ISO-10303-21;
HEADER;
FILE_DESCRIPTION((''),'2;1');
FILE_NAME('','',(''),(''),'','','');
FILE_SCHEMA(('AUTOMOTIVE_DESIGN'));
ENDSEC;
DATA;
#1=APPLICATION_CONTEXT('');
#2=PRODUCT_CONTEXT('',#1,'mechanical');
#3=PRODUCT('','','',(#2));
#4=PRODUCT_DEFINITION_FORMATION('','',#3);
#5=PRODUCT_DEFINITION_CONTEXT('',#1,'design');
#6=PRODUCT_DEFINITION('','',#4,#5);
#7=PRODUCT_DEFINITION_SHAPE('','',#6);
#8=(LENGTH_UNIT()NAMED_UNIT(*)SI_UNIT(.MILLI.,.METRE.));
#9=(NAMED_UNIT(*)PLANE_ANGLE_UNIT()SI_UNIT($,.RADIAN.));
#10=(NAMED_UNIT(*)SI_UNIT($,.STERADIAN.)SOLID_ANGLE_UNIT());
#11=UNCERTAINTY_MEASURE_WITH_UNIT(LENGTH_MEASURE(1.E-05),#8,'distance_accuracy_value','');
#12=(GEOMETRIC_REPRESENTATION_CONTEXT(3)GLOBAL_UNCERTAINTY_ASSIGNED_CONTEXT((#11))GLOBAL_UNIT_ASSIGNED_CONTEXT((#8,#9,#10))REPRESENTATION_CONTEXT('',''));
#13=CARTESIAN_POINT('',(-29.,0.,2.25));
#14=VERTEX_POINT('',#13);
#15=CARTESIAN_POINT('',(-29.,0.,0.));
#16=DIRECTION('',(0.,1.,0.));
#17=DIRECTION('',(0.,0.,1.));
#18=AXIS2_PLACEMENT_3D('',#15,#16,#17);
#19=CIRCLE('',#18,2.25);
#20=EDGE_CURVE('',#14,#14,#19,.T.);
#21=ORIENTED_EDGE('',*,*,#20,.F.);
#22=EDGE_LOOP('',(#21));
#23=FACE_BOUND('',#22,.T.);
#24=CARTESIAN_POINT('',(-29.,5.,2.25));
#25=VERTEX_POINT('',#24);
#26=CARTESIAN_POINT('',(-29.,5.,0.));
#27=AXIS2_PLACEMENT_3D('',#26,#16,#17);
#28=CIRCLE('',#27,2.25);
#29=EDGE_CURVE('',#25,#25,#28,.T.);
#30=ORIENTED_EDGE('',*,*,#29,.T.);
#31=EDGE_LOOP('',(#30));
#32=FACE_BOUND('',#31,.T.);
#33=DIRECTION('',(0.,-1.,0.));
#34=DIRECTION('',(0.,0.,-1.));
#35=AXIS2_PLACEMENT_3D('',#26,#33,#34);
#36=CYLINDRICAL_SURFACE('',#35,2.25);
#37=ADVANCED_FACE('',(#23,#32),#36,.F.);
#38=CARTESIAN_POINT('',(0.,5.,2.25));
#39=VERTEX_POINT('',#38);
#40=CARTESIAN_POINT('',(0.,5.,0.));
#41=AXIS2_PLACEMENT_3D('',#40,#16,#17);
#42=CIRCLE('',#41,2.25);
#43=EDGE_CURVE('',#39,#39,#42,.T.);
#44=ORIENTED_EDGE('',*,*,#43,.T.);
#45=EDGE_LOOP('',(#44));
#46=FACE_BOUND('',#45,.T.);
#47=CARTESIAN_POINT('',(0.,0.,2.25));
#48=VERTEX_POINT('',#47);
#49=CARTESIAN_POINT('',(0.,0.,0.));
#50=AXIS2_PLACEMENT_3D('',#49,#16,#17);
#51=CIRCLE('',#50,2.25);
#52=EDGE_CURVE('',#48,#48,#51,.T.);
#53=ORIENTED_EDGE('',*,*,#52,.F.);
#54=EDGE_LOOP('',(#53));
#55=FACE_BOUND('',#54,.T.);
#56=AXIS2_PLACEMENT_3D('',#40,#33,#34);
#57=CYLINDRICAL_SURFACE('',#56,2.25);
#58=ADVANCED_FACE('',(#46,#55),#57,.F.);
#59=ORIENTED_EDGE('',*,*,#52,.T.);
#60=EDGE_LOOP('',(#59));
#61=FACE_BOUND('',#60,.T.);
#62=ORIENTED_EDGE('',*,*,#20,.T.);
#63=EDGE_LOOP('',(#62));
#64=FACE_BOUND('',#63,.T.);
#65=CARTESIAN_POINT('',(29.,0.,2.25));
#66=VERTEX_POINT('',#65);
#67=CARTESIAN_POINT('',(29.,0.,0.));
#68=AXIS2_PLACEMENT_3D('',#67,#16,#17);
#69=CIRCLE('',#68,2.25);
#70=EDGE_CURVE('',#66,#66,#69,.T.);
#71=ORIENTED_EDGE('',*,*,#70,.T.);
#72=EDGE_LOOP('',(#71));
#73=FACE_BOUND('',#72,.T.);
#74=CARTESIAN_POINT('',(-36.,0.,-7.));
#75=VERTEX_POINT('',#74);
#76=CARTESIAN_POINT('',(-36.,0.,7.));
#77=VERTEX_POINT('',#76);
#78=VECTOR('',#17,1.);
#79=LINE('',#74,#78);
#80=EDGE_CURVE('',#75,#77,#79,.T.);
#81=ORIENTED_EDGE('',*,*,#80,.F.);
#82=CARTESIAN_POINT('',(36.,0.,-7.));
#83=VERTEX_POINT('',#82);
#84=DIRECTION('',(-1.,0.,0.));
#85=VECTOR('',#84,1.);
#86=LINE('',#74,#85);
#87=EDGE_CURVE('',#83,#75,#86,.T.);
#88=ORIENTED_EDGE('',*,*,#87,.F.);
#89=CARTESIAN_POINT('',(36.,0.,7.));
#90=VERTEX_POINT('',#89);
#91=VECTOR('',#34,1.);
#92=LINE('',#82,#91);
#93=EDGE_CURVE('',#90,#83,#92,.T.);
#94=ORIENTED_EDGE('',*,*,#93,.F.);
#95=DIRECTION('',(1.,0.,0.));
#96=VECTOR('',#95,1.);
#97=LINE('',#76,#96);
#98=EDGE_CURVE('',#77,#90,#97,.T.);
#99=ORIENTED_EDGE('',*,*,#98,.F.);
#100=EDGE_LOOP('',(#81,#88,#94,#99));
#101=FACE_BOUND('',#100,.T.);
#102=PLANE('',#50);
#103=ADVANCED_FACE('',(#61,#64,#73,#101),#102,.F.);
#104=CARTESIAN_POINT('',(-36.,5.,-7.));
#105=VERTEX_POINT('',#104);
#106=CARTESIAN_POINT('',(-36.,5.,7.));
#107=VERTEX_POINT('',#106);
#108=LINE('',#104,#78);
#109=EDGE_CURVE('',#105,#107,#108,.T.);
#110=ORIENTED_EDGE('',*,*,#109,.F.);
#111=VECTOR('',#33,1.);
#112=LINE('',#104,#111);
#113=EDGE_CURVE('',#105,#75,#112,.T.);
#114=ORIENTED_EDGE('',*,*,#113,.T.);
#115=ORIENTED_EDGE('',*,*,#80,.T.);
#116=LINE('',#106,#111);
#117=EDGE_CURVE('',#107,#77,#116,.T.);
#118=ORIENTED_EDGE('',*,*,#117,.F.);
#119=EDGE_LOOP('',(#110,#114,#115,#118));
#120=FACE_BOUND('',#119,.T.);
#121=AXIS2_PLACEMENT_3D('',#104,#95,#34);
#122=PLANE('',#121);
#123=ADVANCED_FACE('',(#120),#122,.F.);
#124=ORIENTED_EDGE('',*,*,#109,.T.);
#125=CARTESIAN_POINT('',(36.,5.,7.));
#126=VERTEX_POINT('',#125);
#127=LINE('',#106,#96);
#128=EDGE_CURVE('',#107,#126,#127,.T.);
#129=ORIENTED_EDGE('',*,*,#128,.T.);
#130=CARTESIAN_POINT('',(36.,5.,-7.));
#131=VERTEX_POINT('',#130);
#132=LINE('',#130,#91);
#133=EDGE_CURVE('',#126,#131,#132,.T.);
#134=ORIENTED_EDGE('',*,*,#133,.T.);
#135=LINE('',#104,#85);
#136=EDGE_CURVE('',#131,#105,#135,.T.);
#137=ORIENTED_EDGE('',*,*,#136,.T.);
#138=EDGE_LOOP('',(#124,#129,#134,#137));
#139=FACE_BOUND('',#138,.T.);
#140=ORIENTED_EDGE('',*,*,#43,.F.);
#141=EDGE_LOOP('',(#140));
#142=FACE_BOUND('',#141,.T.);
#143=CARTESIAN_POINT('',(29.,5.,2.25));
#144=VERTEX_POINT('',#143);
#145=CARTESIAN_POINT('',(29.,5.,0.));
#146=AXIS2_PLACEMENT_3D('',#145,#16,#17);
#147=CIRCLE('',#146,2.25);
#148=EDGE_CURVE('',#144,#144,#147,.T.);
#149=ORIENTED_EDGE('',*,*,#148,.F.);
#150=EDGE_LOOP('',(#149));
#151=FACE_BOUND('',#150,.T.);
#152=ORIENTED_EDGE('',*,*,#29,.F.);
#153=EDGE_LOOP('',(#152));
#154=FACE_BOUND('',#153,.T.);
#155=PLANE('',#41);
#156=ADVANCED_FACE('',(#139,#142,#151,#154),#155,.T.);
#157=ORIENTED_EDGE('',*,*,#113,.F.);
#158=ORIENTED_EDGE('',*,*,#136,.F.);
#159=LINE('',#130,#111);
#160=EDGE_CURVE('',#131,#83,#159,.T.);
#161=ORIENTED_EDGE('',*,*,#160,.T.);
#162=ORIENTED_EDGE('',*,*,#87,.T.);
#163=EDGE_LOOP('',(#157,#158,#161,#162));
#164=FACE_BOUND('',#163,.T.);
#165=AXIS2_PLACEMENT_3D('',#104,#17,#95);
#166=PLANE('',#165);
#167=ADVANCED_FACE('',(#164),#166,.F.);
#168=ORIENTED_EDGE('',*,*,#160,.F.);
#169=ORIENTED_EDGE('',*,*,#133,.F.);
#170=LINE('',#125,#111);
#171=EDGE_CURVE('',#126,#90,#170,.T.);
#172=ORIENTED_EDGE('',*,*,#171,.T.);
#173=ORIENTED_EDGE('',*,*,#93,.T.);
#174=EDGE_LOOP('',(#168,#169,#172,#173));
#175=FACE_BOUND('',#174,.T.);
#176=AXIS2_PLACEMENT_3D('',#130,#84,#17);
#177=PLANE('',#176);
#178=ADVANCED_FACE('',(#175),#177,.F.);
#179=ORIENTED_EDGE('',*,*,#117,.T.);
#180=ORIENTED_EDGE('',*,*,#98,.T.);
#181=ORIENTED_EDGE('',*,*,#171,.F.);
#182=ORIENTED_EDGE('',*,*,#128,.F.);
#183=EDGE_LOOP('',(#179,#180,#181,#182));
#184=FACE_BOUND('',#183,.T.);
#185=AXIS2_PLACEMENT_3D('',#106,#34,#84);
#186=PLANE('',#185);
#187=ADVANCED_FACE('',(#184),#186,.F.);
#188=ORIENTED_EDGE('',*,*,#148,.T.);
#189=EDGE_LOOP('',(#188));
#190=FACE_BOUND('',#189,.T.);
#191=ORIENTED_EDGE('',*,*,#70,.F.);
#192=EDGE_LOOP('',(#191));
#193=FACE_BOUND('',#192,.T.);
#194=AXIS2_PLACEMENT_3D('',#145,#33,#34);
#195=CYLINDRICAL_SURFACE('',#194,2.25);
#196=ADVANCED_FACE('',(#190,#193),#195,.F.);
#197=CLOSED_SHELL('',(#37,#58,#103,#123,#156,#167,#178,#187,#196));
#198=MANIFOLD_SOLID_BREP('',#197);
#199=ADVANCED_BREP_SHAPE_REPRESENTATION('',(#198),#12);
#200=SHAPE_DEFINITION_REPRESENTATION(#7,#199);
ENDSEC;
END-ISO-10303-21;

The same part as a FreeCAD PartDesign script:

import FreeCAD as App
import Part
import Sketcher

V = App.Vector
Q = App.Units.Quantity


def add_polygon(sketch, points):
    """Adds a closed chain of lines whose ends are joined by coincident constraints."""
    first, n = sketch.GeometryCount, len(points)
    for a, b in zip(points, points[1:] + points[:1]):
        sketch.addGeometry(Part.LineSegment(App.Vector(*a, 0), App.Vector(*b, 0)), False)
    for i in range(n):
        sketch.addConstraint(Sketcher.Constraint("Coincident", first + i, 2, first + (i + 1) % n, 1))

doc = App.newDocument("Part")
params = doc.addObject("Spreadsheet::Sheet", "Params")
for row, (alias, value) in enumerate([
    ("sketch1_diameter", "4.5 mm"),
    ("sketch1_width", "72 mm"),
    ("sketch1_height", "14 mm"),
    ("pad1_length", "5 mm"),
], start=1):
    params.set(f"A{row}", alias)
    params.set(f"B{row}", "=" + value)
    params.setAlias(f"B{row}", alias)

body = doc.addObject("PartDesign::Body", "Body")

sketch1 = body.newObject("Sketcher::SketchObject", "Sketch")
sketch1.AttachmentSupport = (doc.getObject("XZ_Plane"), [""])
sketch1.MapMode = "FlatFace"
add_polygon(sketch1, [(-36, -7), (-36, 7), (36, 7), (36, -7)])
sketch1.addGeometry(Part.Circle(V(-29, 0, 0), V(0, 0, 1), 2.2), False)
sketch1.addGeometry(Part.Circle(V(0, 0, 0), V(0, 0, 1), 2.2), False)
sketch1.addGeometry(Part.Circle(V(29, 0, 0), V(0, 0, 1), 2.2), False)
sketch1.addConstraint(Sketcher.Constraint("Vertical", 0))
sketch1.addConstraint(Sketcher.Constraint("Horizontal", 1))
sketch1.addConstraint(Sketcher.Constraint("Vertical", 2))
sketch1.addConstraint(Sketcher.Constraint("Horizontal", 3))
sketch1.addConstraint(Sketcher.Constraint("Coincident", 5, 3, -1, 1))
sketch1.addConstraint(Sketcher.Constraint("Equal", 4, 5))
sketch1.addConstraint(Sketcher.Constraint("Equal", 5, 6))
sketch1.addConstraint(Sketcher.Constraint("Symmetric", 4, 3, 6, 3, -1, 1))
sketch1.addConstraint(Sketcher.Constraint("Symmetric", 0, 2, 2, 2, -1, 1))
sketch1.addConstraint(Sketcher.Constraint("PointOnObject", 4, 3, -1))
sketch1.addConstraint(Sketcher.Constraint("Diameter", 4, Q("4.5 mm")))
sketch1.addConstraint(Sketcher.Constraint("DistanceX", 1, 1, 1, 2, Q("72 mm")))
sketch1.addConstraint(Sketcher.Constraint("DistanceY", 0, 1, 0, 2, Q("14 mm")))
sketch1.addConstraint(Sketcher.Constraint("DistanceX", 4, 3, -1, 1, Q("29 mm")))
sketch1.setExpression("Constraints[14]", "Params.sketch1_diameter")
sketch1.setExpression("Constraints[15]", "Params.sketch1_width")
sketch1.setExpression("Constraints[16]", "Params.sketch1_height")
pad1 = body.newObject("PartDesign::Pad", "Pad")
pad1.Profile = sketch1
pad1.setExpression("Length", "Params.pad1_length")
pad1.Reversed = True

doc.recompute()
